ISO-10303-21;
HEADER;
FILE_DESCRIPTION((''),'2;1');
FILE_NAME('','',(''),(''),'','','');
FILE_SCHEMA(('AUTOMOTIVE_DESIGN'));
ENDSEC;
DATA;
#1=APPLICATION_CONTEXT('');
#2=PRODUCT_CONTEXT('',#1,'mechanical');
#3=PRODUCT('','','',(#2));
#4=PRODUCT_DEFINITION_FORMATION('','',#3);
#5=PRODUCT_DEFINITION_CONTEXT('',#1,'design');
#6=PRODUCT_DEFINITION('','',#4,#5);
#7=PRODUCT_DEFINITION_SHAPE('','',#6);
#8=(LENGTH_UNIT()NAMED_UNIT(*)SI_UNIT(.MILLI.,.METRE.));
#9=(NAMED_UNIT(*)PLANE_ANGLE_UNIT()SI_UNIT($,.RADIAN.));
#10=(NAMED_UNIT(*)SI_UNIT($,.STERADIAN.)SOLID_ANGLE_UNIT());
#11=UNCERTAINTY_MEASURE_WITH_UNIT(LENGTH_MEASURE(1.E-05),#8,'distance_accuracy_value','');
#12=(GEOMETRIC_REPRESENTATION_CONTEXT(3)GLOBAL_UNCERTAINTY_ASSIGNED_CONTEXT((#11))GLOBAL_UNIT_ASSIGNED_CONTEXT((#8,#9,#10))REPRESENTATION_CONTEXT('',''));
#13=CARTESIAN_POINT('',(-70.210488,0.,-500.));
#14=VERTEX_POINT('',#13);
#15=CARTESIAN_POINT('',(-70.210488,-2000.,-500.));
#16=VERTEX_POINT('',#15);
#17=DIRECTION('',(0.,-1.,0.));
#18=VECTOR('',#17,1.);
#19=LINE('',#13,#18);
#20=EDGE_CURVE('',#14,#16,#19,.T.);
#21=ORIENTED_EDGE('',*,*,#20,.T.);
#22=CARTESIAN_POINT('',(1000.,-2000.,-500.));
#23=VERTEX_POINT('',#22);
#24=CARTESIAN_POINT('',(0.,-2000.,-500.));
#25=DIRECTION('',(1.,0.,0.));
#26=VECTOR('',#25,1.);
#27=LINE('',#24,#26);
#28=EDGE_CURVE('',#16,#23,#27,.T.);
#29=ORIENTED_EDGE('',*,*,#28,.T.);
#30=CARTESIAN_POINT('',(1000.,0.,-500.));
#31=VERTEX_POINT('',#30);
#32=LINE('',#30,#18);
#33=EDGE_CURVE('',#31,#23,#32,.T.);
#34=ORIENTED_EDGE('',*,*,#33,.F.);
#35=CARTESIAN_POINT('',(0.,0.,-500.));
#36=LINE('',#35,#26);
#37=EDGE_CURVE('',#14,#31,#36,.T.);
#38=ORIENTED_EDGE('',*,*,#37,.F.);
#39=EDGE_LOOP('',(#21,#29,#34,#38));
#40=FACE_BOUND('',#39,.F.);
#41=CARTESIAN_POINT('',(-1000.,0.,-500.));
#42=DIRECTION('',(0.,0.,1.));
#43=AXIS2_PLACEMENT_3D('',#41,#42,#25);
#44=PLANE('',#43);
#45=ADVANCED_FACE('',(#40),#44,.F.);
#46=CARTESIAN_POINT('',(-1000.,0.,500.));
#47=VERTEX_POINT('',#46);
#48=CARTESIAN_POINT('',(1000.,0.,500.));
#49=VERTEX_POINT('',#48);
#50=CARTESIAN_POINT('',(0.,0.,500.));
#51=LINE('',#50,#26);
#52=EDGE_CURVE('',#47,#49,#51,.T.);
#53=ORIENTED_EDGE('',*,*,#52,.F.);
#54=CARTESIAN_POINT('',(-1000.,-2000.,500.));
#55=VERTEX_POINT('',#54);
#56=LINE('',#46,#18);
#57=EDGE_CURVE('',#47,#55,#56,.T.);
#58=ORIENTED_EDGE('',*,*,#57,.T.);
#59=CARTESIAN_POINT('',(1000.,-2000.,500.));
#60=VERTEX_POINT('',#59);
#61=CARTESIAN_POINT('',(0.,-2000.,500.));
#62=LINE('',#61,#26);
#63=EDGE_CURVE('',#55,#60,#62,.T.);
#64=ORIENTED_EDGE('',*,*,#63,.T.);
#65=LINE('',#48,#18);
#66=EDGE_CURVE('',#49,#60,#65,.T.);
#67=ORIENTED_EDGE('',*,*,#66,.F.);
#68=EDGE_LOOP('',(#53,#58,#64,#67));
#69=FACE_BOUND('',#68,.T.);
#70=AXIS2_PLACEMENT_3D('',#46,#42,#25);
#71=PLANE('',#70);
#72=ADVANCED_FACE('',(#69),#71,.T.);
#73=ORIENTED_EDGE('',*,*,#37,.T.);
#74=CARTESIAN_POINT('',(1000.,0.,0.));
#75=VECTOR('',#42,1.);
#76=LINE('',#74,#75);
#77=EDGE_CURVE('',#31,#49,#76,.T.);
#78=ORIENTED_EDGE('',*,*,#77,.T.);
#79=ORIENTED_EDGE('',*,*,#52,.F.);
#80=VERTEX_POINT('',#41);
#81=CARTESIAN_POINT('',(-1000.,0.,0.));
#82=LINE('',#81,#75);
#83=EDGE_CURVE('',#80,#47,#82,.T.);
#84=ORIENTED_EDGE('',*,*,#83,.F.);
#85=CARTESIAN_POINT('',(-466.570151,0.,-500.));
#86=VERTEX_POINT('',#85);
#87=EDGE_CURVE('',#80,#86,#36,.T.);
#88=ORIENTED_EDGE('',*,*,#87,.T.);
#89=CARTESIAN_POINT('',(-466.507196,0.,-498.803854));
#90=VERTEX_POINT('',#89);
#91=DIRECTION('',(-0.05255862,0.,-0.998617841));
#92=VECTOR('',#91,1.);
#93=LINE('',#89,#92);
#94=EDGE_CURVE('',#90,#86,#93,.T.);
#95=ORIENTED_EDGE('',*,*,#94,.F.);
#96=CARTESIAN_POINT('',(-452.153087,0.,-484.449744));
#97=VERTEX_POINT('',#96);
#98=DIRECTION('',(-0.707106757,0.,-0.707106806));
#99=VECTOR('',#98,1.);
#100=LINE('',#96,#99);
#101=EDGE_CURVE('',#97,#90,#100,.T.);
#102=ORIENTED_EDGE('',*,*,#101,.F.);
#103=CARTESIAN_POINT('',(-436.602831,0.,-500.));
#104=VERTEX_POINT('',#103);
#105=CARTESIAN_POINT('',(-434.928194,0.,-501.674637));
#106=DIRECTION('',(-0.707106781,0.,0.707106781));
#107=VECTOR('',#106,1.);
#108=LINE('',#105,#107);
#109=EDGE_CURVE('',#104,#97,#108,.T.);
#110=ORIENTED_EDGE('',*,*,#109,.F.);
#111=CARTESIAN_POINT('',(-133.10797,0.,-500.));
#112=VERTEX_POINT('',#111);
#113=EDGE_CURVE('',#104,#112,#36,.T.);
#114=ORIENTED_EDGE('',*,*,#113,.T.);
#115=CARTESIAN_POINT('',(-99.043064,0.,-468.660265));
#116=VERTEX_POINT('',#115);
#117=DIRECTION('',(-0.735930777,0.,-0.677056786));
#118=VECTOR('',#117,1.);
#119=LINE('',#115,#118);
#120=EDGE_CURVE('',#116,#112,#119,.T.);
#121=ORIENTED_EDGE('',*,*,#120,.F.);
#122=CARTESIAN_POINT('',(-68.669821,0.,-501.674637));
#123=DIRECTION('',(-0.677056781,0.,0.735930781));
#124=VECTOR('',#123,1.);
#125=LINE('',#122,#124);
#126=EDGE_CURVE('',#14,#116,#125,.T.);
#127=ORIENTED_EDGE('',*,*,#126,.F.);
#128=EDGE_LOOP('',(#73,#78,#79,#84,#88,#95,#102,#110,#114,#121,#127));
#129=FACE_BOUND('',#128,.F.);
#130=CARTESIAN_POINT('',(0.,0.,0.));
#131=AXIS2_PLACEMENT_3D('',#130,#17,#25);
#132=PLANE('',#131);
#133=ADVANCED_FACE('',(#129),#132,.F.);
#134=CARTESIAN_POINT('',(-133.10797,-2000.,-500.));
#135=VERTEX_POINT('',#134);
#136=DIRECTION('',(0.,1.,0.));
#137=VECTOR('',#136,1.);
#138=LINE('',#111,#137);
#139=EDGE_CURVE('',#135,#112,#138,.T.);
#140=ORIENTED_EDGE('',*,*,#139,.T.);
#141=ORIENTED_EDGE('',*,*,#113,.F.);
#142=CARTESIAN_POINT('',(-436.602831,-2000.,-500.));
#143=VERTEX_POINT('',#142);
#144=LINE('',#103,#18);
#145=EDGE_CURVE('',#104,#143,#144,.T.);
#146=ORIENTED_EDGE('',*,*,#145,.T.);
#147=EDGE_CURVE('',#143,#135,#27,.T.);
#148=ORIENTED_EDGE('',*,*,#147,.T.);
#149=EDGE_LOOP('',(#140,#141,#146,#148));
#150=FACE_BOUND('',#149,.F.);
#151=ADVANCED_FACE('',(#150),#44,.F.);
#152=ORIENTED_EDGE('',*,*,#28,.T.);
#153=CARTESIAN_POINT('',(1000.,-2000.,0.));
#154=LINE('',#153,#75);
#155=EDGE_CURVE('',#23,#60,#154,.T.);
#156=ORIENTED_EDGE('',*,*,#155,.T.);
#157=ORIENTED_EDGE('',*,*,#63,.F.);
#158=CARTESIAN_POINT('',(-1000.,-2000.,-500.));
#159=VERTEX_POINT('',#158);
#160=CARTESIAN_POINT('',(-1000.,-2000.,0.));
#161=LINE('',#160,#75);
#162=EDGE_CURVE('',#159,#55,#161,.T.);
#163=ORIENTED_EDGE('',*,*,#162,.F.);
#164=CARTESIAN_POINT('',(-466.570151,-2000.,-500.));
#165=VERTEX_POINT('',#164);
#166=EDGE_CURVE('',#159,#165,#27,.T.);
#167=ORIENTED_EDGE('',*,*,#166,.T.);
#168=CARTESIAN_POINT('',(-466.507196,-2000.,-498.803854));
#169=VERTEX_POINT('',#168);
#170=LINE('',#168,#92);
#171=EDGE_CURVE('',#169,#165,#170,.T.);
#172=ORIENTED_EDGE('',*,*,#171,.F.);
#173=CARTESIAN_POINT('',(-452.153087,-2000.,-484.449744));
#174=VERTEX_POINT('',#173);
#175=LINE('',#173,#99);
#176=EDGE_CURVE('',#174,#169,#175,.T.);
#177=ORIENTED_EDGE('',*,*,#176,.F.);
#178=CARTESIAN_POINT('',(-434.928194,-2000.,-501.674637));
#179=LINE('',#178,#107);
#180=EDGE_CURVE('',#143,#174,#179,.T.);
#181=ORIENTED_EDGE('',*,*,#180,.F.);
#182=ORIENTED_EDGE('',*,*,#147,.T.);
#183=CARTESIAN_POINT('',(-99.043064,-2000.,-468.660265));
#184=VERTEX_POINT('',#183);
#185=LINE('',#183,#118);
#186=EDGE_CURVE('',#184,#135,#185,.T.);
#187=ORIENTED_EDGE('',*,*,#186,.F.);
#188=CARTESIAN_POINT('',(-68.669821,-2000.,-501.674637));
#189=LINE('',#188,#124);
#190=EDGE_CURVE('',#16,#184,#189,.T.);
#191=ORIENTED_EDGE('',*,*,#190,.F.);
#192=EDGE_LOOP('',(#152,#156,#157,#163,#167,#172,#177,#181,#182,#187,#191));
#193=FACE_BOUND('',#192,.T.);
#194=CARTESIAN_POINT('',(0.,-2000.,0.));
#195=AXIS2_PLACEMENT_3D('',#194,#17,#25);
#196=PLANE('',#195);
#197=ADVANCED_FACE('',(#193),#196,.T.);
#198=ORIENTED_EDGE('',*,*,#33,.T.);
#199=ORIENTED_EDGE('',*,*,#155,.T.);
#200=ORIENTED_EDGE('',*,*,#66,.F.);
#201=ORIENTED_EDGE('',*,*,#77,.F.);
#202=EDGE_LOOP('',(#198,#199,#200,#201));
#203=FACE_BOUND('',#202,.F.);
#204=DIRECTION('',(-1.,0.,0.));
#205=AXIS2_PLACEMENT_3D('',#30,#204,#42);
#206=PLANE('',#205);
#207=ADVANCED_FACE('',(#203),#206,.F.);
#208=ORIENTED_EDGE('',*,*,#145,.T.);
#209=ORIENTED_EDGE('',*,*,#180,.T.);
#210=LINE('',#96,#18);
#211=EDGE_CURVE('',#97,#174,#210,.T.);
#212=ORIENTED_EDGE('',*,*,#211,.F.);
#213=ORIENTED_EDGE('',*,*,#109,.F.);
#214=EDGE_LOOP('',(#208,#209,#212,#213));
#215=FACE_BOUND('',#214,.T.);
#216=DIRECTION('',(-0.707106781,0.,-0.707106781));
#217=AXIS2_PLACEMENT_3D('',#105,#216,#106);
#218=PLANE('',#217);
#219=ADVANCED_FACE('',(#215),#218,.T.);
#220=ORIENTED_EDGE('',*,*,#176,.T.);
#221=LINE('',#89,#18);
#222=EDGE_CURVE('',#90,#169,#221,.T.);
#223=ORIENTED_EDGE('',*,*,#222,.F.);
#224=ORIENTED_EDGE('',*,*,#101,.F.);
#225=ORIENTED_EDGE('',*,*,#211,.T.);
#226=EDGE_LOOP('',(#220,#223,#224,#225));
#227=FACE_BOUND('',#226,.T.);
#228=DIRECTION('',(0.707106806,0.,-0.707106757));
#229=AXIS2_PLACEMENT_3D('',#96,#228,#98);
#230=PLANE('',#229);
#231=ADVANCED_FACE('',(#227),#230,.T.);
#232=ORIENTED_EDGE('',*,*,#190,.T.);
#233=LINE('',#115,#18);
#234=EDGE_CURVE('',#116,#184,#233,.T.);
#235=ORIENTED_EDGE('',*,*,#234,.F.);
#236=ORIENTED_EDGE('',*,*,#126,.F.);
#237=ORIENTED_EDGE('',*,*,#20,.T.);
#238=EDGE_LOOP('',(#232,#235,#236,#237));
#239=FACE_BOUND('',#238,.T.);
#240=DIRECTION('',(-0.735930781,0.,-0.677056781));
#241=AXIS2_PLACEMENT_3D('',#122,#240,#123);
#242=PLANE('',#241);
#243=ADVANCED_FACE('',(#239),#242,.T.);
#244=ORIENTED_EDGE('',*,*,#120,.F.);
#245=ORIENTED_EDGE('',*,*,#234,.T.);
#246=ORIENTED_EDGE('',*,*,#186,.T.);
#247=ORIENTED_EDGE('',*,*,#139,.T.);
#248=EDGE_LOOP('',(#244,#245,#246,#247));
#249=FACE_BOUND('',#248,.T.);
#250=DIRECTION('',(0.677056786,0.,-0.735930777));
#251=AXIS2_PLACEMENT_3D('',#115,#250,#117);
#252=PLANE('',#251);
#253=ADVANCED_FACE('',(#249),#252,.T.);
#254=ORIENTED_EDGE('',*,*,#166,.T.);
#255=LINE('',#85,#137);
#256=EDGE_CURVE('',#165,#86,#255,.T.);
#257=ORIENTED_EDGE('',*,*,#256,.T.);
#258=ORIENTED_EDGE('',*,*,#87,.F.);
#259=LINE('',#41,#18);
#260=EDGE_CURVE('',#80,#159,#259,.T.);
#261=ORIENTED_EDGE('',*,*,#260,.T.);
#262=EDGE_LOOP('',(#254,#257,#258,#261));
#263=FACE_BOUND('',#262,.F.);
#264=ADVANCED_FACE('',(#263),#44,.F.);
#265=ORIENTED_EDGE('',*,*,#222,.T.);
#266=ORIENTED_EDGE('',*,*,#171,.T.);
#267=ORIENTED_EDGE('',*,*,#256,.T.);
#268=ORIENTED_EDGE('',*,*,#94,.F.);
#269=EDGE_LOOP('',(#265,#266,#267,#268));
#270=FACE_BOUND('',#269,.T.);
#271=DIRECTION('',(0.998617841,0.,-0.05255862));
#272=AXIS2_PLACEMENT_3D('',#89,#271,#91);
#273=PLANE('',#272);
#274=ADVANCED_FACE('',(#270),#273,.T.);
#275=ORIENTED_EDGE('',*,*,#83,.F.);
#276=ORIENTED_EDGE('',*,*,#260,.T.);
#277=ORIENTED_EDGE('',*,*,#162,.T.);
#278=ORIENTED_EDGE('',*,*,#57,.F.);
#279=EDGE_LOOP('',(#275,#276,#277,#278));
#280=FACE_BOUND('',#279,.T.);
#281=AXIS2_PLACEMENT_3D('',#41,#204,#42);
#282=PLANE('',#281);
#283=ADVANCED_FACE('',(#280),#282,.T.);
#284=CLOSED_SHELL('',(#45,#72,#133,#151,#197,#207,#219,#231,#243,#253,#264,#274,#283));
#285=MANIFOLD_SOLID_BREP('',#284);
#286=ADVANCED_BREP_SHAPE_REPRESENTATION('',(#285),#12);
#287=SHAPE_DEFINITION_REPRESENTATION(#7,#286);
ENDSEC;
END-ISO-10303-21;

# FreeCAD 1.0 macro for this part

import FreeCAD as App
import Part
import Sketcher
Q = App.Units.Quantity


def add_polygon(sketch, points):
    """Adds a closed chain of lines whose ends are joined by coincident constraints."""
    first, n = sketch.GeometryCount, len(points)
    for a, b in zip(points, points[1:] + points[:1]):
        sketch.addGeometry(Part.LineSegment(App.Vector(*a, 0), App.Vector(*b, 0)), False)
    for i in range(n):
        sketch.addConstraint(Sketcher.Constraint("Coincident", first + i, 2, first + (i + 1) % n, 1))

doc = App.newDocument("Part")
params = doc.addObject("Spreadsheet::Sheet", "Params")
for row, (alias, value) in enumerate([
    ("sketch1_width", "2000 mm"),
    ("sketch1_height", "1000 mm"),
    ("pad1_length", "2000 mm"),
    ("pocket1_length", "2000 mm"),
], start=1):
    params.set(f"A{row}", alias)
    params.set(f"B{row}", "=" + value)
    params.setAlias(f"B{row}", alias)

body = doc.addObject("PartDesign::Body", "Body")

# Sketch on XZ plane
sketch1 = body.newObject("Sketcher::SketchObject", "Sketch")
sketch1.AttachmentSupport = (doc.getObject("XZ_Plane"), [""])
sketch1.MapMode = "FlatFace"
add_polygon(sketch1, [(-1000, 500), (-1000, -500), (1000, -500), (1000, 500)])  # lines 0-3
sketch1.addConstraint(Sketcher.Constraint("Vertical", 0))
sketch1.addConstraint(Sketcher.Constraint("Horizontal", 1))
sketch1.addConstraint(Sketcher.Constraint("Vertical", 2))
sketch1.addConstraint(Sketcher.Constraint("Horizontal", 3))
sketch1.addConstraint(Sketcher.Constraint("Symmetric", 0, 2, 2, 2, -1, 1))
sketch1.addConstraint(Sketcher.Constraint("DistanceX", 1, 1, 1, 2, 2000.0))
sketch1.addConstraint(Sketcher.Constraint("DistanceY", 0, 2, 0, 1, 1000.0))
sketch1.setExpression("Constraints[9]", "Params.sketch1_width")
sketch1.setExpression("Constraints[10]", "Params.sketch1_height")
pad1 = body.newObject("PartDesign::Pad", "Pad")
pad1.Profile = sketch1
pad1.setExpression("Length", "Params.pad1_length")

# Sketch on XZ plane
sketch2 = body.newObject("Sketcher::SketchObject", "Sketch001")
sketch2.AttachmentSupport = (doc.getObject("XZ_Plane"), [""])
sketch2.MapMode = "FlatFace"
add_polygon(sketch2, [(-452, -484), (-467, -499), (-469, -553), (-69, -553), (-69, -502), (-99, -469), (-135, -502), (-435, -502)])  # lines 0-7
sketch2.addConstraint(Sketcher.Constraint("Horizontal", 2))
sketch2.addConstraint(Sketcher.Constraint("Vertical", 3))
sketch2.addConstraint(Sketcher.Constraint("Horizontal", 6))
sketch2.addConstraint(Sketcher.Constraint("Perpendicular", 4, 5))
sketch2.addConstraint(Sketcher.Constraint("Perpendicular", 0, 7))
sketch2.addConstraint(Sketcher.Constraint("Horizontal", 3, 2, 5, 2))
sketch2.addConstraint(Sketcher.Constraint("Angle", 0, Q("-134.999998 deg")))
sketch2.addConstraint(Sketcher.Constraint("Distance", 5, 48.7616))
sketch2.addConstraint(Sketcher.Constraint("DistanceX", 6, 2, 6, 1, 299.999968))
sketch2.addConstraint(Sketcher.Constraint("DistanceY", 3, 1, 3, 2, 51.67462))
sketch2.addConstraint(Sketcher.Constraint("DistanceX", 1, 2, 0, 2, 2.870799))
sketch2.addConstraint(Sketcher.Constraint("DistanceX", 1, 2, 6, 2, 34.449801))
sketch2.addConstraint(Sketcher.Constraint("DistanceX", 2, 1, 2, 2, 400.708174))
sketch2.addConstraint(Sketcher.Constraint("DistanceX", 2, 2, -1, 1, 68.669821))
sketch2.addConstraint(Sketcher.Constraint("DistanceY", 0, 2, 4, 2, 30.143589))
sketch2.addConstraint(Sketcher.Constraint("DistanceY", 0, 2, -1, 1, 498.803854))
pocket1 = body.newObject("PartDesign::Pocket", "Pocket")
pocket1.Profile = sketch2
pocket1.setExpression("Length", "Params.pocket1_length")
pocket1.Reversed = True

doc.recompute()
